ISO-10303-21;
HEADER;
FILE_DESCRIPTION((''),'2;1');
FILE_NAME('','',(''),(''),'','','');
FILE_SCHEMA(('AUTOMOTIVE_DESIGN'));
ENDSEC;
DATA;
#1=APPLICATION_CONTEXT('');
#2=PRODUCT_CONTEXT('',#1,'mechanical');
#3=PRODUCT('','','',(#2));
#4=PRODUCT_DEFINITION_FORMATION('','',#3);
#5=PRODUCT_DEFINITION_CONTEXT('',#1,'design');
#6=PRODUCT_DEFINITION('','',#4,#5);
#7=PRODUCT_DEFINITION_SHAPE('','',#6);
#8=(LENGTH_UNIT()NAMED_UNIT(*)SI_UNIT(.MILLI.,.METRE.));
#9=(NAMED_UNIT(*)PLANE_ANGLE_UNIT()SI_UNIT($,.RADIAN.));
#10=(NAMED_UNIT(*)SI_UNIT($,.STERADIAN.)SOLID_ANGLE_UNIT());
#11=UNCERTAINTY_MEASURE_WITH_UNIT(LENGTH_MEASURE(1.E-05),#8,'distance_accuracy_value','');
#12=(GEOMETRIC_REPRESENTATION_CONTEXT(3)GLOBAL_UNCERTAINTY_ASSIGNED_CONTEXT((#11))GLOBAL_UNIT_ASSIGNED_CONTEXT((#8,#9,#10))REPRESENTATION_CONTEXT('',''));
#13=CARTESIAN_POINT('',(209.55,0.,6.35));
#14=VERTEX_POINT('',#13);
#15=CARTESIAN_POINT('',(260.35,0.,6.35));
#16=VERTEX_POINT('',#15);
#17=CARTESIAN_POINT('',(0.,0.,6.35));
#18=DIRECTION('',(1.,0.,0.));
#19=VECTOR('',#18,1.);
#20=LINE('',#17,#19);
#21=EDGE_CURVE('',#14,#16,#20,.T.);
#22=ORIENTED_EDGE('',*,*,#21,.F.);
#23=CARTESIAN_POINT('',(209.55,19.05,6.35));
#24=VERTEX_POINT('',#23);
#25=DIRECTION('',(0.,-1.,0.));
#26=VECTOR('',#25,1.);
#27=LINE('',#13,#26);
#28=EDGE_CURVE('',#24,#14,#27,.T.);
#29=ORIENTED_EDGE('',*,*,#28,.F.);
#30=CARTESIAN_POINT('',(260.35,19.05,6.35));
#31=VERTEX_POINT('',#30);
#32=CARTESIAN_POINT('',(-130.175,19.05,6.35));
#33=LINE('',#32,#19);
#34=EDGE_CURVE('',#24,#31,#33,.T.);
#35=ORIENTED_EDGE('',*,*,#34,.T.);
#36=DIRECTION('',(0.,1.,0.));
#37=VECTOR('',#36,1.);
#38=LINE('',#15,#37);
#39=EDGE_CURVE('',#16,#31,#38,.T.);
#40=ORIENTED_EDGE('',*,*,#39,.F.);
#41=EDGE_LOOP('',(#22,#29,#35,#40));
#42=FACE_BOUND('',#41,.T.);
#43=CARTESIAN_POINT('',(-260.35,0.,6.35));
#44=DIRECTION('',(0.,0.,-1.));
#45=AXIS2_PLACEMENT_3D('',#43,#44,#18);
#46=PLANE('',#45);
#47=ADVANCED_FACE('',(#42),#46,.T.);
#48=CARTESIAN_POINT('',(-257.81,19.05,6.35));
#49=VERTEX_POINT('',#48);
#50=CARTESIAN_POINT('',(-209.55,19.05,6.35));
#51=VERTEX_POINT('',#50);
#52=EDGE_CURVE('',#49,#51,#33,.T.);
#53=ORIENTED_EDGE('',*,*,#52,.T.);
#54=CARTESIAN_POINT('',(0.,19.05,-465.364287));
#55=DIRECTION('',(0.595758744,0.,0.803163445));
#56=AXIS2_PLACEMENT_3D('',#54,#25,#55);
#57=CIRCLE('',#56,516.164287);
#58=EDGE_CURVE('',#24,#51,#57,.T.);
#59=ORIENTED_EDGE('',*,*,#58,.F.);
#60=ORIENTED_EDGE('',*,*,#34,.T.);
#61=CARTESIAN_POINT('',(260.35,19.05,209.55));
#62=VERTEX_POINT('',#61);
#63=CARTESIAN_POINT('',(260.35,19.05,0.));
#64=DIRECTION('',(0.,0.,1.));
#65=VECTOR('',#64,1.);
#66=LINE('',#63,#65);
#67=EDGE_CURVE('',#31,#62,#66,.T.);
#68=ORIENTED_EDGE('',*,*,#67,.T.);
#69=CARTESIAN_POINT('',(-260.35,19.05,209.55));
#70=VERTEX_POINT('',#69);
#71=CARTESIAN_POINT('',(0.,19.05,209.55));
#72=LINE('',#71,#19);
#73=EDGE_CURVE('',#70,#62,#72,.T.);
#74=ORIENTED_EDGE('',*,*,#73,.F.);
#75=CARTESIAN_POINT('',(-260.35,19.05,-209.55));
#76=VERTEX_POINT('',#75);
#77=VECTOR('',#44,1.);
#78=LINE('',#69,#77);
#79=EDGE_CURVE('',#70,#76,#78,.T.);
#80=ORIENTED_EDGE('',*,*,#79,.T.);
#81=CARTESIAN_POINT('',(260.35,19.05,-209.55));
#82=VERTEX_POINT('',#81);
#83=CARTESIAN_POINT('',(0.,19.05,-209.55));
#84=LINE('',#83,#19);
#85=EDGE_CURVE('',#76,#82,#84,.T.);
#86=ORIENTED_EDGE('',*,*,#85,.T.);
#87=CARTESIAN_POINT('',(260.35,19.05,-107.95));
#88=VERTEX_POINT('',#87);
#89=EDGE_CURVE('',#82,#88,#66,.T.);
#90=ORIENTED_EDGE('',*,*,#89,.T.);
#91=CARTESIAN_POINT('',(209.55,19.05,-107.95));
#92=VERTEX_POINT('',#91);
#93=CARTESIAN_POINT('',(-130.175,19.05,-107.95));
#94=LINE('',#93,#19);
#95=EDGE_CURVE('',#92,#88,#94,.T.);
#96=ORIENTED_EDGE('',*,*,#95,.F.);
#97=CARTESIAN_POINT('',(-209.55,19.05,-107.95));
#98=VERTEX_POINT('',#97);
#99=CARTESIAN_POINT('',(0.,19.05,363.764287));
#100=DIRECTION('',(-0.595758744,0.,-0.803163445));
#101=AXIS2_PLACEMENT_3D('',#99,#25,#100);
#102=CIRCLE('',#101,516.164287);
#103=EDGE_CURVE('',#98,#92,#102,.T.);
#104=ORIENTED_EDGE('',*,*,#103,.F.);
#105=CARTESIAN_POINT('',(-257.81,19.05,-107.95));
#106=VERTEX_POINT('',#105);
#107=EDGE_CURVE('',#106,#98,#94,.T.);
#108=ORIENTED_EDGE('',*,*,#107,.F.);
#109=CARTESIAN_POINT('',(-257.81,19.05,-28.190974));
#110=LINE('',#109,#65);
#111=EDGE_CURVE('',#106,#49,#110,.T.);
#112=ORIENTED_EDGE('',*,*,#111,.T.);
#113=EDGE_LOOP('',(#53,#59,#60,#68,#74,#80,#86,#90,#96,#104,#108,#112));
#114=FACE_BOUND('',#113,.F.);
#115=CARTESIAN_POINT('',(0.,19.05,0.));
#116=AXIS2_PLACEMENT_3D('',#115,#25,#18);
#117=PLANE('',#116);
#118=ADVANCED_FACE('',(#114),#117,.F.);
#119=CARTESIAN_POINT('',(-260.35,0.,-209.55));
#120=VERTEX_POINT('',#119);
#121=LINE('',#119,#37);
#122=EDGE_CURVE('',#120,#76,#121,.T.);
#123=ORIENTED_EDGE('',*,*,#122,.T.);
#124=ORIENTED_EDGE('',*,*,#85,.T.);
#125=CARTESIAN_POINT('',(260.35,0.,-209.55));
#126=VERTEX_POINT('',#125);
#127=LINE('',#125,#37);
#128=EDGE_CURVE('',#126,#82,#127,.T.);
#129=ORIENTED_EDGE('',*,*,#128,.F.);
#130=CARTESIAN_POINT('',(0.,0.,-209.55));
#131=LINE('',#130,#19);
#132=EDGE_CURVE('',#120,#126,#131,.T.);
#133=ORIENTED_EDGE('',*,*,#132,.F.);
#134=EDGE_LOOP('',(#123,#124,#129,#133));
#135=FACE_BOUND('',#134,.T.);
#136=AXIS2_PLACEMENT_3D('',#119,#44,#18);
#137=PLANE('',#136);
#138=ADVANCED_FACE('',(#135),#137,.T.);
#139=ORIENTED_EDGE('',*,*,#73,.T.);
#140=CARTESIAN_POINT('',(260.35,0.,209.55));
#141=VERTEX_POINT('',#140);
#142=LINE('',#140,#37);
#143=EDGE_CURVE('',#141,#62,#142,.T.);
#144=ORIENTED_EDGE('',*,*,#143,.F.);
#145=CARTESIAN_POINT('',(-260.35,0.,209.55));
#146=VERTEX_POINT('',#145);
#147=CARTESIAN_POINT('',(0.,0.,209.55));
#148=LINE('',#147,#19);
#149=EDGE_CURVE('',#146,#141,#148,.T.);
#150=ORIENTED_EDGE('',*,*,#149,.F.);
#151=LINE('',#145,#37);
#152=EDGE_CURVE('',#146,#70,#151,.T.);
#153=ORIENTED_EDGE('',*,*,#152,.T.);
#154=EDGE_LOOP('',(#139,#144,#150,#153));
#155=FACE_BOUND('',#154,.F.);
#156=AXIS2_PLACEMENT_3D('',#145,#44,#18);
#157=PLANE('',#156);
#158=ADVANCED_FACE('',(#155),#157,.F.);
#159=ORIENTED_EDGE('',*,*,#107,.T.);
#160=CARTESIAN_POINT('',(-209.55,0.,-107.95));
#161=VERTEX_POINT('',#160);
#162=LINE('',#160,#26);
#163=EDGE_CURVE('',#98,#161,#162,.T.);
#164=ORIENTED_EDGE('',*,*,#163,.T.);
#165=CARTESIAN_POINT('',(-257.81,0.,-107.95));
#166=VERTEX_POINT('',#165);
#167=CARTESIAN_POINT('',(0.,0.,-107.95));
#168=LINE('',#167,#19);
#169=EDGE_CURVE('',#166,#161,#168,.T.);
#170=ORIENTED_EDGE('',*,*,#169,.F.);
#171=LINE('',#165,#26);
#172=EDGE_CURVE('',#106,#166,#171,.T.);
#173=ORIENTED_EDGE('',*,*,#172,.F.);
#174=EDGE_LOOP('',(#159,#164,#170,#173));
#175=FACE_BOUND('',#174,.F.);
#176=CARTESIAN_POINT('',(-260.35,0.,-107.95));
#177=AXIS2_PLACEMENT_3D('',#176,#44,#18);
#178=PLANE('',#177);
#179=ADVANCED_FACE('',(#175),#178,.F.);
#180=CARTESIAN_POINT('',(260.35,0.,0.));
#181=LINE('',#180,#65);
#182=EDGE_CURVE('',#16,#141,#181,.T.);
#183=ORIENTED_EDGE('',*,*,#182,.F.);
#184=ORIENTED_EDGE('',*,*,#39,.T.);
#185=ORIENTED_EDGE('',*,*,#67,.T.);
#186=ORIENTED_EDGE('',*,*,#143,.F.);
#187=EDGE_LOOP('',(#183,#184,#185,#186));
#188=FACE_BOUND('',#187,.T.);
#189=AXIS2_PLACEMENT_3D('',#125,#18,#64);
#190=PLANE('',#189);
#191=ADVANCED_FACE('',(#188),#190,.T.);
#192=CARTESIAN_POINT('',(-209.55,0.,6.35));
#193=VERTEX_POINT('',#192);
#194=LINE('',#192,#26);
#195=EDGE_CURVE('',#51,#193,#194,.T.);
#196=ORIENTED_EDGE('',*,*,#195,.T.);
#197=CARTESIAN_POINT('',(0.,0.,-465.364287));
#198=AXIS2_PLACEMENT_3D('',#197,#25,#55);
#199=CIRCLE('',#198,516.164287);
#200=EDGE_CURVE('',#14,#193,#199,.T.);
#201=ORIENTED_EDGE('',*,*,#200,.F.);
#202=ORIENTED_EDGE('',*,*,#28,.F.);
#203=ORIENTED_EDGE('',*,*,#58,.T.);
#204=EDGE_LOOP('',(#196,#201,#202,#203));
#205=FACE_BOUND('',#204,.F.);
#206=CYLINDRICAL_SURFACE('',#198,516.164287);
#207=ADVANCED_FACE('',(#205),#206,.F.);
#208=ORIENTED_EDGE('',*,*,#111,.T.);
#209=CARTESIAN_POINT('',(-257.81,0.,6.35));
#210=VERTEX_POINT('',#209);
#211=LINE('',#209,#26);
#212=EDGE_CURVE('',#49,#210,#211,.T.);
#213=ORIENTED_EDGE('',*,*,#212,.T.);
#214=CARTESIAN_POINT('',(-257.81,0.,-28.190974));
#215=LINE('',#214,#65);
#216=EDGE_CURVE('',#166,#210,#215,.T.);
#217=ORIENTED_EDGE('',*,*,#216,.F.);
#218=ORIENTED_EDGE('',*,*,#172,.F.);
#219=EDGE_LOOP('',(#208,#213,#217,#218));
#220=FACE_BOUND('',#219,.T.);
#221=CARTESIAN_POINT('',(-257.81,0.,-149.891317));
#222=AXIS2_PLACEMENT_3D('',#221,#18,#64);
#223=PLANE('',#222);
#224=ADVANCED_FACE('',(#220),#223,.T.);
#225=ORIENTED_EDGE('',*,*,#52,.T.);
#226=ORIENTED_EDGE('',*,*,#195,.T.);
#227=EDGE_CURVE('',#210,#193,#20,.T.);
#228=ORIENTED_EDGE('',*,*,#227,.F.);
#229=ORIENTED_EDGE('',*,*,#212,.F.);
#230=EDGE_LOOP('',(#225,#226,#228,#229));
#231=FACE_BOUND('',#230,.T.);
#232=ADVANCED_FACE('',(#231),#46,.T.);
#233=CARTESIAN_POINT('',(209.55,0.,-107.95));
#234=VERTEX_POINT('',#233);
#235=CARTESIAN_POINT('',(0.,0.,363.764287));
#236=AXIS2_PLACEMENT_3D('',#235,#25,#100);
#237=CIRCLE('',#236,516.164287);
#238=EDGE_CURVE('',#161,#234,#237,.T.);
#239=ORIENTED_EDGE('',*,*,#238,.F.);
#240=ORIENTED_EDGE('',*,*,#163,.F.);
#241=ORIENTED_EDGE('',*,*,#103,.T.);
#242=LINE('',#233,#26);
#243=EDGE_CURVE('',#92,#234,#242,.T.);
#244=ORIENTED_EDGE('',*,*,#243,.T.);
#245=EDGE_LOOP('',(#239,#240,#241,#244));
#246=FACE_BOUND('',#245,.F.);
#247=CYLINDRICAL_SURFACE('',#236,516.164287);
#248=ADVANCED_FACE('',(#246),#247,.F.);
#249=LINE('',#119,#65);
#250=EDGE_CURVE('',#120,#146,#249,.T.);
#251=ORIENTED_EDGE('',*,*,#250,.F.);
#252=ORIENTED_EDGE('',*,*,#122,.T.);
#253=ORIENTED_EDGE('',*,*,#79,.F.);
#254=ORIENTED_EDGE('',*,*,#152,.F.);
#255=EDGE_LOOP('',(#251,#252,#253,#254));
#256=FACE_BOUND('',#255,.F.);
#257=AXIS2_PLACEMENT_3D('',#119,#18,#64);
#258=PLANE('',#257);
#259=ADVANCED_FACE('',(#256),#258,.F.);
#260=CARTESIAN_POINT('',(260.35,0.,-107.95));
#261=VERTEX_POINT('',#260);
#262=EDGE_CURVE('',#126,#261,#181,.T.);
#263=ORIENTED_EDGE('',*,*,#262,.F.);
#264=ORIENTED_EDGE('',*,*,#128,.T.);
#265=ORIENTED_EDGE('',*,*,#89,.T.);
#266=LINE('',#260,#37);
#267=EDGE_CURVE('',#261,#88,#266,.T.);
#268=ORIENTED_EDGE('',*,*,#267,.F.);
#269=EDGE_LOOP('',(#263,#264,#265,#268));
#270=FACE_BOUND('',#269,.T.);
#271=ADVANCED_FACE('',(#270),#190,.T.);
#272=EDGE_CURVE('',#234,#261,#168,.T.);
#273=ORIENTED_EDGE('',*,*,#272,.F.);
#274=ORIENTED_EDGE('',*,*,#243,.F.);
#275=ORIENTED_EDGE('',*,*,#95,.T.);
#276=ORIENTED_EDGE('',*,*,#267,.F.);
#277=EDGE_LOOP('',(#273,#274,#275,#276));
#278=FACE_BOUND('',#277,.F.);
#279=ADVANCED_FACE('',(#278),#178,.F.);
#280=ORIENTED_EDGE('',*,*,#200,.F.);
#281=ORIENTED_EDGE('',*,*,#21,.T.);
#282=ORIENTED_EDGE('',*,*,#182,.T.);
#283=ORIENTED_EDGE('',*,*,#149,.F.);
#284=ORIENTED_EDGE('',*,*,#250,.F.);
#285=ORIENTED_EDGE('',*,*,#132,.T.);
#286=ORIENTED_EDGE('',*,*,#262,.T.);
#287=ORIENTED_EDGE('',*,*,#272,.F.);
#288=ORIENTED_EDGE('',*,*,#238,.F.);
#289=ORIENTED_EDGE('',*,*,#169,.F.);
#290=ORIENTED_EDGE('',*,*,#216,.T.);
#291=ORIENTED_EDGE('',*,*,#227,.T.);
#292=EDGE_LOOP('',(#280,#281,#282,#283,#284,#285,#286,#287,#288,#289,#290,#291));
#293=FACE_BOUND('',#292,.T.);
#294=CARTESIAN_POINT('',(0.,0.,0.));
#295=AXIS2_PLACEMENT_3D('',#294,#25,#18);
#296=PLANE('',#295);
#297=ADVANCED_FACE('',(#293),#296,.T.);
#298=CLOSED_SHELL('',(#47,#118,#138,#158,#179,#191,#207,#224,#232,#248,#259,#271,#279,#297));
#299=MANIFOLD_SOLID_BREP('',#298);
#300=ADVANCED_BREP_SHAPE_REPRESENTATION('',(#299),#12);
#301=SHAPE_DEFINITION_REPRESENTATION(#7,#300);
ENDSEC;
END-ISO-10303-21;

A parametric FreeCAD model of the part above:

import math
import FreeCAD as App
import Part
import Sketcher
Q = App.Units.Quantity

doc = App.newDocument("Part")
body = doc.addObject("PartDesign::Body", "Body")
body.AllowCompound = True

# Sketch on XZ plane
sketch1 = body.newObject("Sketcher::SketchObject", "Sketch")
sketch1.AttachmentSupport = (doc.getObject("XZ_Plane"), [""])
sketch1.MapMode = "FlatFace"
sketch1.addGeometry([
    Part.LineSegment(App.Vector(-260.35, 209.55, 0), App.Vector(-260.35, -209.55, 0)),
    Part.LineSegment(App.Vector(-260.35, -209.55, 0), App.Vector(260.35, -209.55, 0)),
    Part.LineSegment(App.Vector(260.35, -209.55, 0), App.Vector(260.35, 209.55, 0)),
    Part.LineSegment(App.Vector(260.35, 209.55, 0), App.Vector(-260.35, 209.55, 0)),
], False)
sketch1.addConstraint([
    Sketcher.Constraint("Coincident", 0, 2, 1, 1),
    Sketcher.Constraint("Coincident", 1, 2, 2, 1),
    Sketcher.Constraint("Coincident", 2, 2, 3, 1),
    Sketcher.Constraint("Coincident", 3, 2, 0, 1),
    Sketcher.Constraint("Vertical", 0),
    Sketcher.Constraint("Horizontal", 1),
    Sketcher.Constraint("Vertical", 2),
    Sketcher.Constraint("Horizontal", 3),
    Sketcher.Constraint("Symmetric", 0, 2, 2, 2, -1, 1),
    Sketcher.Constraint("DistanceX", 1, 1, 1, 2, Q("20.5 in")),
    Sketcher.Constraint("DistanceY", 0, 2, 0, 1, Q("16.5 in")),
])
pad1 = body.newObject("PartDesign::Pad", "Pad")
pad1.Profile = sketch1
pad1.Length = Q("0.75 in")
pad1.Reversed = True

# Sketch on XZ plane
sketch2 = body.newObject("Sketcher::SketchObject", "Sketch001")
sketch2.AttachmentSupport = (doc.getObject("XZ_Plane"), [""])
sketch2.MapMode = "FlatFace"
sketch2.addGeometry([
    Part.LineSegment(App.Vector(-260.35, 6.35, 0), App.Vector(-260.35, -107.95, 0)),
    Part.LineSegment(App.Vector(-260.35, -107.95, 0), App.Vector(260.35, -107.95, 0)),
    Part.LineSegment(App.Vector(260.35, -107.95, 0), App.Vector(260.35, 6.35, 0)),
    Part.LineSegment(App.Vector(260.35, 6.35, 0), App.Vector(-260.35, 6.35, 0)),
], False)
sketch2.addConstraint([
    Sketcher.Constraint("Coincident", 0, 2, 1, 1),
    Sketcher.Constraint("Coincident", 1, 2, 2, 1),
    Sketcher.Constraint("Coincident", 2, 2, 3, 1),
    Sketcher.Constraint("Coincident", 3, 2, 0, 1),
    Sketcher.Constraint("Vertical", 0),
    Sketcher.Constraint("Horizontal", 1),
    Sketcher.Constraint("Vertical", 2),
    Sketcher.Constraint("Horizontal", 3),
    Sketcher.Constraint("DistanceX", 1, 1, 1, 2, Q("20.5 in")),
    Sketcher.Constraint("DistanceY", 0, 2, 0, 1, Q("4.5 in")),
    Sketcher.Constraint("DistanceX", 0, 2, -1, 1, Q("10.25 in")),
    Sketcher.Constraint("DistanceY", 0, 2, -1, 1, Q("4.25 in")),
])
pocket1 = body.newObject("PartDesign::Pocket", "Pocket")
pocket1.Profile = sketch2
pocket1.Length = Q("1 in")

# Sketch on XZ plane
sketch3 = body.newObject("Sketcher::SketchObject", "Sketch002")
sketch3.AttachmentSupport = (doc.getObject("XZ_Plane"), [""])
sketch3.MapMode = "FlatFace"
sketch3.addGeometry([
    Part.ArcOfCircle(Part.Circle(App.Vector(0, 363.764287, 0), App.Vector(0, 0, 1), 516.164287), math.radians(-126.56674), math.radians(-53.43326)),
    Part.ArcOfCircle(Part.Circle(App.Vector(0, -465.364287, 0), App.Vector(0, 0, 1), 516.164287), math.radians(53.43326), math.radians(126.56674)),
], False)
sketch3.addConstraint([
    Sketcher.Constraint("Coincident", 0, 1, 1, 2),
    Sketcher.Constraint("Coincident", 1, 1, 0, 2),
    Sketcher.Constraint("Equal", 0, 1),
    Sketcher.Constraint("Symmetric", 0, 1, 1, 1, -2),
    Sketcher.Constraint("DistanceY", 0, 1, -1, 1, Q("2 in")),
    Sketcher.Constraint("Radius", 0, Q("516.164287 mm")),
    Sketcher.Constraint("DistanceY", -1, 1, 0, 3, Q("363.764287 mm")),
])
pocket2 = body.newObject("PartDesign::Pocket", "Pocket001")
pocket2.Profile = sketch3
pocket2.Length = Q("1 in")

# Sketch on XZ plane
sketch4 = body.newObject("Sketcher::SketchObject", "Sketch003")
sketch4.AttachmentSupport = (doc.getObject("XZ_Plane"), [""])
sketch4.MapMode = "FlatFace"
sketch4.addGeometry([
    Part.LineSegment(App.Vector(-260.35, 93.509369, 0), App.Vector(-260.35, -149.891317, 0)),
    Part.LineSegment(App.Vector(-260.35, -149.891317, 0), App.Vector(-257.81, -149.891317, 0)),
    Part.LineSegment(App.Vector(-257.81, -149.891317, 0), App.Vector(-257.81, 93.509369, 0)),
    Part.LineSegment(App.Vector(-257.81, 93.509369, 0), App.Vector(-260.35, 93.509369, 0)),
], False)
sketch4.addConstraint([
    Sketcher.Constraint("Coincident", 0, 2, 1, 1),
    Sketcher.Constraint("Coincident", 1, 2, 2, 1),
    Sketcher.Constraint("Coincident", 2, 2, 3, 1),
    Sketcher.Constraint("Coincident", 3, 2, 0, 1),
    Sketcher.Constraint("Vertical", 0),
    Sketcher.Constraint("Horizontal", 1),
    Sketcher.Constraint("Vertical", 2),
    Sketcher.Constraint("Horizontal", 3),
    Sketcher.Constraint("DistanceX", 1, 1, 1, 2, Q("0.1 in")),
    Sketcher.Constraint("DistanceX", 0, 2, -1, 1, Q("10.25 in")),
    Sketcher.Constraint("DistanceY", 0, 2, 0, 1, Q("243.400686 mm")),
    Sketcher.Constraint("DistanceY", -1, 1, 2, 2, Q("93.509369 mm")),
])
pad2 = body.newObject("PartDesign::Pad", "Pad001")
pad2.Profile = sketch4
pad2.Length = Q("0.75 in")
pad2.Reversed = True

doc.recompute()
